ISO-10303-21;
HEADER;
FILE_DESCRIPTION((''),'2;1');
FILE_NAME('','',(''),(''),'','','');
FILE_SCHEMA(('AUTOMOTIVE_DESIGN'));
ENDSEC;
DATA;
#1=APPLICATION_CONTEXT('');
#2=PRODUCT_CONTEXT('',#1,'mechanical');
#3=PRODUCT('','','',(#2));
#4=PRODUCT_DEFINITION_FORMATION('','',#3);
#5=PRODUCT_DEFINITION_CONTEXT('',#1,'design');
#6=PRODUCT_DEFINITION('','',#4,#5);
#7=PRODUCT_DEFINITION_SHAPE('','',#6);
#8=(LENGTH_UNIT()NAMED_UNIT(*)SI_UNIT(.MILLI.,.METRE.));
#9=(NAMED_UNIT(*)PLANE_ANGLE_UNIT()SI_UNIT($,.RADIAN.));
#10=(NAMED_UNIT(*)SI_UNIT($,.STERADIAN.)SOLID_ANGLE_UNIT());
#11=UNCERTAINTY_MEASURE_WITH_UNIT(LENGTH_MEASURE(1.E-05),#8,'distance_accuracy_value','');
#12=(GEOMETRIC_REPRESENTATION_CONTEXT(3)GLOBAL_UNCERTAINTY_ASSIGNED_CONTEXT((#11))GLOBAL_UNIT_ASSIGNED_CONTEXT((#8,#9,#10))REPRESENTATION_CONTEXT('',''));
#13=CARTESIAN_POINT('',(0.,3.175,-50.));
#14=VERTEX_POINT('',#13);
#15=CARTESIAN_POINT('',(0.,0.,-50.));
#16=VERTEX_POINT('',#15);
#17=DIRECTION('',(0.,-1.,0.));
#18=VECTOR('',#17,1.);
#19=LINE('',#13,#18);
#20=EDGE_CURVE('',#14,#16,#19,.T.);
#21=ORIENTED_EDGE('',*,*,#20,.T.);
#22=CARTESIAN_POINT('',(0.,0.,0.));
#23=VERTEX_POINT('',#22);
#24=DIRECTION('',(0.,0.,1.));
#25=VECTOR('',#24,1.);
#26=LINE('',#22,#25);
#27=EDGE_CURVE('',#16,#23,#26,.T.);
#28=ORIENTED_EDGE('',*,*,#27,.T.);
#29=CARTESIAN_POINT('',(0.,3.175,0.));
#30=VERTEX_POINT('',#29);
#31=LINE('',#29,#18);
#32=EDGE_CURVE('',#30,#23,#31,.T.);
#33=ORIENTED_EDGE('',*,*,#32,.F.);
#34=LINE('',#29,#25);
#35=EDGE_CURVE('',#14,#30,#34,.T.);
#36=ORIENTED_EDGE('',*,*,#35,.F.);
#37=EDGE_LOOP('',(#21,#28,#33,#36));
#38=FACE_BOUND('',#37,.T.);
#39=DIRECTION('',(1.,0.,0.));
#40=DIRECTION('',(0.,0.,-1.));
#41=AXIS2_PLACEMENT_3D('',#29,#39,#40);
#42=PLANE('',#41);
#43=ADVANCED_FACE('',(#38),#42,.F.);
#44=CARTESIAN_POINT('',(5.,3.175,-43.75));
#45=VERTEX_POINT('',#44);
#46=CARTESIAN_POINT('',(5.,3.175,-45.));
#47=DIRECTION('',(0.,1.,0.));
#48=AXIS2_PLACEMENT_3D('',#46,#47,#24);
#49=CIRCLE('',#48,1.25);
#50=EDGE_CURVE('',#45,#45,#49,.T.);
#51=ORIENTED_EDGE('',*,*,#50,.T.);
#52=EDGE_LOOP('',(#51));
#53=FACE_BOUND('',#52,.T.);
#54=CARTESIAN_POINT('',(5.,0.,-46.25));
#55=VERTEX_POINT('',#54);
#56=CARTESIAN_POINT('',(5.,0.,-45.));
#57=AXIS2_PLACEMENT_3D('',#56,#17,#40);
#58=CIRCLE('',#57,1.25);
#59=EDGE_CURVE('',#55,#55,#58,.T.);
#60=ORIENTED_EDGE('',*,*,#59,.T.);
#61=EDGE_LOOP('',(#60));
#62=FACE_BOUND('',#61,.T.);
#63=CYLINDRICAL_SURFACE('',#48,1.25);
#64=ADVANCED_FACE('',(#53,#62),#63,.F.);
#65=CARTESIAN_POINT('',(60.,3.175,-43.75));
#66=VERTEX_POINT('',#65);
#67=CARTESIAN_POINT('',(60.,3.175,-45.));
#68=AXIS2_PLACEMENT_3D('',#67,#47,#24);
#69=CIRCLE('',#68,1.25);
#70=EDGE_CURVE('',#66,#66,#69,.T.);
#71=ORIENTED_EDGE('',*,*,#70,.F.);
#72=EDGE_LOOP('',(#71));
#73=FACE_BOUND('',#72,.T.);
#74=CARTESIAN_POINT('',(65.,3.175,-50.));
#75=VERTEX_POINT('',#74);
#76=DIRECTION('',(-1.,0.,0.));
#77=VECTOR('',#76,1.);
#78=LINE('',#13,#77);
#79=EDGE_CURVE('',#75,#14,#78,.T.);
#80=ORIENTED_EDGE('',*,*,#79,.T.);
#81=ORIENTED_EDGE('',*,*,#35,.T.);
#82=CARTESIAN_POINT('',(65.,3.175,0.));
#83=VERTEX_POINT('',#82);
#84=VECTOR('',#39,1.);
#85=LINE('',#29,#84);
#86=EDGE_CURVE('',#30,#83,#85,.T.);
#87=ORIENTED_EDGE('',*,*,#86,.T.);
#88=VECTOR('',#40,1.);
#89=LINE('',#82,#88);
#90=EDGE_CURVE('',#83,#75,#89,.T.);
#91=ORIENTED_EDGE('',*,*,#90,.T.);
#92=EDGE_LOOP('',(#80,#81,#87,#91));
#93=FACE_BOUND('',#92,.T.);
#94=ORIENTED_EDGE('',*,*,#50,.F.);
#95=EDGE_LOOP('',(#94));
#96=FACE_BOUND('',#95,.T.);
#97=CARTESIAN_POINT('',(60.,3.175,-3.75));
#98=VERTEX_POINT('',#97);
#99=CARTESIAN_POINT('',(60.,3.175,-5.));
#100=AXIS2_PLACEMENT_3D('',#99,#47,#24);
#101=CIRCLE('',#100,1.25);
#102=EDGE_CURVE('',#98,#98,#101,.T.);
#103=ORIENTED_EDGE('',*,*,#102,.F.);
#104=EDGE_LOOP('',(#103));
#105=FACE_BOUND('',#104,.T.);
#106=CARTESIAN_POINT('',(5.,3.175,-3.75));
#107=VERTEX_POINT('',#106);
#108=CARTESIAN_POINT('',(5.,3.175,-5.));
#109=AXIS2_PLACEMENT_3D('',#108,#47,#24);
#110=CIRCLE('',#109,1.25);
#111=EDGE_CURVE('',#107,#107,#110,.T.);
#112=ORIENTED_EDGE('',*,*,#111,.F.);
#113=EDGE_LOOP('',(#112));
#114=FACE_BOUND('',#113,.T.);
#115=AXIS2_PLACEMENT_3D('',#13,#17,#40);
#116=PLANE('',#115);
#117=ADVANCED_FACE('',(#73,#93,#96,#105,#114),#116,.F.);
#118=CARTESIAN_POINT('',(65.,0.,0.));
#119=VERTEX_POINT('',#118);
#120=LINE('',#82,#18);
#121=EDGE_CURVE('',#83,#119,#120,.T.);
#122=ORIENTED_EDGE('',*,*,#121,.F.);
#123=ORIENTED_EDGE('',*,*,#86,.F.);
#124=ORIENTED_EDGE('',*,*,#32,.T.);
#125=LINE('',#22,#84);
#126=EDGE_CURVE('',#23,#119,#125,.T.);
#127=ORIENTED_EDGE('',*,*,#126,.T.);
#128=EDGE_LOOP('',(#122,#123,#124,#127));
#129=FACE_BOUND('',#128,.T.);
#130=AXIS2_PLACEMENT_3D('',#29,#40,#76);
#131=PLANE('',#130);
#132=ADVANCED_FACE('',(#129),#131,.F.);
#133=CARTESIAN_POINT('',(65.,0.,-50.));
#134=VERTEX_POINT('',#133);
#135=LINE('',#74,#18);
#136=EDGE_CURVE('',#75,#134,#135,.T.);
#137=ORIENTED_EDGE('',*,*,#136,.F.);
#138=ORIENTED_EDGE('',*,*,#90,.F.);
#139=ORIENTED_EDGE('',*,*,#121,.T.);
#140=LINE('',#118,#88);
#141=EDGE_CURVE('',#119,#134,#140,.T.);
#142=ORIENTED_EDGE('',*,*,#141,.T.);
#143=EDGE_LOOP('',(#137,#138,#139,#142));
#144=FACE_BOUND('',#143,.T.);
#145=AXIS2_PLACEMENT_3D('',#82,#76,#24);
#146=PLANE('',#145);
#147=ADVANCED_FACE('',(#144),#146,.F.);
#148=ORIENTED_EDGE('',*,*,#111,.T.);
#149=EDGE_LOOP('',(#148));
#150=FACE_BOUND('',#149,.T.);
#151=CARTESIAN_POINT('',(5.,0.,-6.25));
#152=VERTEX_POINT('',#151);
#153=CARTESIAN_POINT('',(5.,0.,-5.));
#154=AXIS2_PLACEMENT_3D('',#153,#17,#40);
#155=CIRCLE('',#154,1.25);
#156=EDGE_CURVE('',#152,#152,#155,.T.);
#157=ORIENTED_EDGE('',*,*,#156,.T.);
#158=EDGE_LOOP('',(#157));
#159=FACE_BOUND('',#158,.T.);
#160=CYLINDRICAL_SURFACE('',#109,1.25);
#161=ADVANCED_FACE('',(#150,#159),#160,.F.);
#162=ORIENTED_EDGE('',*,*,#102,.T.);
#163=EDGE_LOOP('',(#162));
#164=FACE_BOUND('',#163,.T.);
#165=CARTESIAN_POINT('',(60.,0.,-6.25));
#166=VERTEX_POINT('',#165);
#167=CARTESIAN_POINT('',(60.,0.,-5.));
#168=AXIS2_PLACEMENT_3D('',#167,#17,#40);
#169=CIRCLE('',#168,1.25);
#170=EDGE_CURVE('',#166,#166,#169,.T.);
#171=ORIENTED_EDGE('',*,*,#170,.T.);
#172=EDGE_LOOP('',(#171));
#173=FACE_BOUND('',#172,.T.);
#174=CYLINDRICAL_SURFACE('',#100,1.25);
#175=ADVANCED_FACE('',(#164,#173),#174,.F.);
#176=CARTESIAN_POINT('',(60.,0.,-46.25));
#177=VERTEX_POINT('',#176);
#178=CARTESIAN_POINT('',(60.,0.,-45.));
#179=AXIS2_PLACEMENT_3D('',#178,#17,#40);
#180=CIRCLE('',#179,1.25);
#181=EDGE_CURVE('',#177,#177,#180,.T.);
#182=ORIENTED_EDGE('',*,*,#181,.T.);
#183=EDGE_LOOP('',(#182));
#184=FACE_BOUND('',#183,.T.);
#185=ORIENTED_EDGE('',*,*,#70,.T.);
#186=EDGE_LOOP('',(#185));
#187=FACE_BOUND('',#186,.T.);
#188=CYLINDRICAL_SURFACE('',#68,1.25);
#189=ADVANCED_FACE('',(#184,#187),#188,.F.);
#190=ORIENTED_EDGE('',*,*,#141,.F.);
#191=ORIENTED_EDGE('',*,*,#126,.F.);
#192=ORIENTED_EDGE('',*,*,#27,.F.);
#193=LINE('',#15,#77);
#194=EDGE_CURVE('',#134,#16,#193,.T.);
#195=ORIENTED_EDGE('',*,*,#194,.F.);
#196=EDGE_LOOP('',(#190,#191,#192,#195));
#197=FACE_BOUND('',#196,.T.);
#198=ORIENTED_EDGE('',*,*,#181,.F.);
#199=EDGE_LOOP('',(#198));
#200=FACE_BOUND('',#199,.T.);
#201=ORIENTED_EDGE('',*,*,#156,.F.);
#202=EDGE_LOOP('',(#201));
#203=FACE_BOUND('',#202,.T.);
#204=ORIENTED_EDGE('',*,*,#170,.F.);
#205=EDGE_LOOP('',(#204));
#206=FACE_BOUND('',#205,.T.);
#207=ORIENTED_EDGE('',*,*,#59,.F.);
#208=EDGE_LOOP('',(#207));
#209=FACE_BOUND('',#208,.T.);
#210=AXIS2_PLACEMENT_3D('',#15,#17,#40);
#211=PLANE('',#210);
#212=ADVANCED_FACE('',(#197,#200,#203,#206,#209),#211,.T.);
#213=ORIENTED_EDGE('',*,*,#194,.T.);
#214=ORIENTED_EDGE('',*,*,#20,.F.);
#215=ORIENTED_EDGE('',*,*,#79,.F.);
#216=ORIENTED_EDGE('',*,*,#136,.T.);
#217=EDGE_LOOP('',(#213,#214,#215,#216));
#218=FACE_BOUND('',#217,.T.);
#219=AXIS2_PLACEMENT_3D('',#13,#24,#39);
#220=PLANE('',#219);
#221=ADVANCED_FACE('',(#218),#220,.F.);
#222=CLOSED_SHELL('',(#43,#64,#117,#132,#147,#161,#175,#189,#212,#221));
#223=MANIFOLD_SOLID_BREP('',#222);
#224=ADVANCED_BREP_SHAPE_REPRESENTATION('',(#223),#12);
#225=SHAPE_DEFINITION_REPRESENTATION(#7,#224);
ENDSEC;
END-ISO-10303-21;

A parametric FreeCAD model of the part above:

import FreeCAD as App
import Part
import Sketcher


def add_polygon(sketch, points):
    """Adds a closed chain of lines whose ends are joined by coincident constraints."""
    first, n = sketch.GeometryCount, len(points)
    for a, b in zip(points, points[1:] + points[:1]):
        sketch.addGeometry(Part.LineSegment(App.Vector(*a, 0), App.Vector(*b, 0)), False)
    for i in range(n):
        sketch.addConstraint(Sketcher.Constraint("Coincident", first + i, 2, first + (i + 1) % n, 1))

doc = App.newDocument("Part")
body = doc.addObject("PartDesign::Body", "Body")

sketch1 = body.newObject("Sketcher::SketchObject", "Sketch")
sketch1.AttachmentSupport = (doc.getObject("XZ_Plane"), [""])
sketch1.MapMode = "FlatFace"
add_polygon(sketch1, [(0, -50), (0, 0), (65, 0), (65, -50)])
sketch1.addConstraint([
    Sketcher.Constraint("Vertical", 0),
    Sketcher.Constraint("Horizontal", 1),
    Sketcher.Constraint("Vertical", 2),
    Sketcher.Constraint("Horizontal", 3),
    Sketcher.Constraint("Coincident", 0, 2, -1, 1),
    Sketcher.Constraint("DistanceX", 1, 1, 1, 2, 65.0),
    Sketcher.Constraint("DistanceY", 0, 1, 0, 2, 50.0),
])
pad1 = body.newObject("PartDesign::Pad", "Pad")
pad1.Profile = sketch1
pad1.Length = 3.175
pad1.Reversed = True

sketch2 = body.newObject("Sketcher::SketchObject", "Sketch001")
sketch2.AttachmentSupport = (doc.getObject("XZ_Plane"), [""])
sketch2.MapMode = "FlatFace"
sketch2.AttachmentOffset = App.Placement(App.Vector(0, 0, -3.175), App.Rotation())
sketch2.addGeometry([
    Part.Circle(App.Vector(5, -45, 0), App.Vector(0, 0, 1), 1.2),
    Part.Circle(App.Vector(60, -45, 0), App.Vector(0, 0, 1), 1.2),
    Part.Circle(App.Vector(60, -5, 0), App.Vector(0, 0, 1), 1.2),
    Part.Circle(App.Vector(5, -5, 0), App.Vector(0, 0, 1), 1.2),
], False)
sketch2.addConstraint([
    Sketcher.Constraint("Equal", 0, 1),
    Sketcher.Constraint("Equal", 1, 2),
    Sketcher.Constraint("Equal", 2, 3),
    Sketcher.Constraint("Horizontal", 0, 3, 1, 3),
    Sketcher.Constraint("Horizontal", 2, 3, 3, 3),
    Sketcher.Constraint("Vertical", 1, 3, 2, 3),
    Sketcher.Constraint("Vertical", 0, 3, 3, 3),
    Sketcher.Constraint("Diameter", 0, 2.5),
    Sketcher.Constraint("DistanceX", -1, 1, 0, 3, 5.0),
    Sketcher.Constraint("DistanceY", 0, 3, -1, 1, 45.0),
    Sketcher.Constraint("DistanceX", -1, 1, 1, 3, 60.0),
    Sketcher.Constraint("DistanceY", 2, 3, -1, 1, 5.0),
])
doc.recompute()
hole = body.newObject("PartDesign::Hole", "Hole")
hole.Profile = sketch2
hole.ThreadType = "None"
hole.Diameter = 2.5
hole.DepthType = "Dimension"
hole.Depth = 7.5
hole.DrillPoint = "Angled"
hole.DrillPointAngle = 118
hole.Reversed = True

doc.recompute()
